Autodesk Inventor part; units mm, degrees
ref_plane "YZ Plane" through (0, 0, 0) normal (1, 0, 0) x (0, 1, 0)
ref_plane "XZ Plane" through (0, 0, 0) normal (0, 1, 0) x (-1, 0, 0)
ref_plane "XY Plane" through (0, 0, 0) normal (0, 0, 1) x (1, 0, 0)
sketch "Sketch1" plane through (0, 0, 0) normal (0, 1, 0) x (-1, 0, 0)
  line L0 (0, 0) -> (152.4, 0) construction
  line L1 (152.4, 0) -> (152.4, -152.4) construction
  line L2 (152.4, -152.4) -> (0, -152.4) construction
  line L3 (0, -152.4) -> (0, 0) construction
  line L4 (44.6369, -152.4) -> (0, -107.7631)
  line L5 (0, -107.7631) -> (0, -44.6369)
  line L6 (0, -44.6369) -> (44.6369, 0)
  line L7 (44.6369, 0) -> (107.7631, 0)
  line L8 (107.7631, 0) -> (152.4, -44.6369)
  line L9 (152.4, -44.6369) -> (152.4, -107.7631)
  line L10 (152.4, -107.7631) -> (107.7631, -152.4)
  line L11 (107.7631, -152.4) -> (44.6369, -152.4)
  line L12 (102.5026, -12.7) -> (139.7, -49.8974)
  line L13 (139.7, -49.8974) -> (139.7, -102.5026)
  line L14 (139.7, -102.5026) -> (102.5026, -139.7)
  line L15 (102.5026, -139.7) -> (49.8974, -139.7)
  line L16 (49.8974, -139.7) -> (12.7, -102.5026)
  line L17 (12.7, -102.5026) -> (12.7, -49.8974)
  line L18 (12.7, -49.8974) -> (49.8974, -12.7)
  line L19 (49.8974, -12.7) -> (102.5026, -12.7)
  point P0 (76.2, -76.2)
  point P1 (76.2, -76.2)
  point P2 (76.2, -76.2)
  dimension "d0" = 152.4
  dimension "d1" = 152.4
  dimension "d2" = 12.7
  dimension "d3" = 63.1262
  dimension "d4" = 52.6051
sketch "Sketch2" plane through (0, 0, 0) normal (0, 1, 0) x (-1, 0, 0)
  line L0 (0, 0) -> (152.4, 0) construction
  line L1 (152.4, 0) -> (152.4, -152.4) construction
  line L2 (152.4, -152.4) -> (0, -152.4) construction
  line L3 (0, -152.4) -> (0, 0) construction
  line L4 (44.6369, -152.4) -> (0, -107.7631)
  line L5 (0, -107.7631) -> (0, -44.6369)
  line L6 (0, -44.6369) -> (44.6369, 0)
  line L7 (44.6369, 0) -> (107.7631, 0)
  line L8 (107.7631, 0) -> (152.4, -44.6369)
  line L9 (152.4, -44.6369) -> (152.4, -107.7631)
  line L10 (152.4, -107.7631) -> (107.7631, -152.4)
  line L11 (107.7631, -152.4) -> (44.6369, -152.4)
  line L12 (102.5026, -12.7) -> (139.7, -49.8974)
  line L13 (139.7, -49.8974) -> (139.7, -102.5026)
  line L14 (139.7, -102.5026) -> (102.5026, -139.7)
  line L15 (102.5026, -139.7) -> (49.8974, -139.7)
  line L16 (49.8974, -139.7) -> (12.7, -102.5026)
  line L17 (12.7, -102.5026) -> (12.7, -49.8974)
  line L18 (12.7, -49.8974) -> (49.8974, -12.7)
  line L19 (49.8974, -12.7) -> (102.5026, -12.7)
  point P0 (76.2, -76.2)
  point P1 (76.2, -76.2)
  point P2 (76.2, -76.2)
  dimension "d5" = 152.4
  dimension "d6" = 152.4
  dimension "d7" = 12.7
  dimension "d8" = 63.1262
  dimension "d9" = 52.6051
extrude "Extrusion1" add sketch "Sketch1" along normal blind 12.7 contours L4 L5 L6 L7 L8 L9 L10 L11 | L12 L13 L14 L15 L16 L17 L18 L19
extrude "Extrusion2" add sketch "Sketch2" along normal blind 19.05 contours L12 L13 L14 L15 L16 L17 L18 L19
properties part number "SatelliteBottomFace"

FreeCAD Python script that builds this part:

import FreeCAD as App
import Part
import Sketcher

V = App.Vector
Q = App.Units.Quantity


def add_polygon(sketch, points):
    """Adds a closed chain of lines whose ends are joined by coincident constraints."""
    first, n = sketch.GeometryCount, len(points)
    for a, b in zip(points, points[1:] + points[:1]):
        sketch.addGeometry(Part.LineSegment(App.Vector(*a, 0), App.Vector(*b, 0)), False)
    for i in range(n):
        sketch.addConstraint(Sketcher.Constraint("Coincident", first + i, 2, first + (i + 1) % n, 1))

doc = App.newDocument("Part")
body = doc.addObject("PartDesign::Body", "Body")

sketch1 = doc.addObject("Sketcher::SketchObject", "Sketch")
body.addObject(sketch1)
sketch1.AttachmentSupport = (doc.XZ_Plane, [""])
sketch1.MapMode = "FlatFace"
add_polygon(sketch1, [(0, -107.7631), (-44.6369, -152.4), (-107.7631, -152.4), (-152.4, -107.7631), (-152.4, -44.6369), (-107.7631, 0), (-44.6369, 0), (0, -44.6369)])
sketch1.addConstraint(Sketcher.Constraint("Horizontal", 1))
sketch1.addConstraint(Sketcher.Constraint("Vertical", 3))
sketch1.addConstraint(Sketcher.Constraint("Horizontal", 5))
sketch1.addConstraint(Sketcher.Constraint("Vertical", 7))
sketch1.addConstraint(Sketcher.Constraint("PointOnObject", 4, 2, -1))
sketch1.addConstraint(Sketcher.Constraint("PointOnObject", 6, 2, -2))
sketch1.addConstraint(Sketcher.Constraint("Perpendicular", 0, 2))
sketch1.addConstraint(Sketcher.Constraint("Perpendicular", 2, 4))
sketch1.addConstraint(Sketcher.Constraint("Perpendicular", 4, 6))
sketch1.addConstraint(Sketcher.Constraint("Horizontal", 3, 2, 6, 2))
sketch1.addConstraint(Sketcher.Constraint("Horizontal", 2, 2, 7, 2))
sketch1.addConstraint(Sketcher.Constraint("Vertical", 1, 2, 4, 2))
sketch1.addConstraint(Sketcher.Constraint("Vertical", 0, 2, 5, 2))
sketch1.addConstraint(Sketcher.Constraint("Equal", 5, 3))
sketch1.addConstraint(Sketcher.Constraint("DistanceY", 0, 2, -1, 1, Q("6 in")))
sketch1.addConstraint(Sketcher.Constraint("DistanceX", 1, 2, 1, 1, 63.1262))
pad1 = doc.addObject("PartDesign::Pad", "Pad")
body.addObject(pad1)
pad1.Profile = sketch1
pad1.Length = Q("0.5 in")
pad1.Reversed = True

sketch2 = doc.addObject("Sketcher::SketchObject", "Sketch001")
body.addObject(sketch2)
sketch2.AttachmentSupport = (doc.XZ_Plane, [""])
sketch2.MapMode = "FlatFace"
add_polygon(sketch2, [(-139.7, -49.8974), (-102.5026, -12.7), (-49.8974, -12.7), (-12.7, -49.8974), (-12.7, -102.5026), (-49.8974, -139.7), (-102.5026, -139.7), (-139.7, -102.5026)])
sketch2.addConstraint(Sketcher.Constraint("Horizontal", 1))
sketch2.addConstraint(Sketcher.Constraint("Vertical", 3))
sketch2.addConstraint(Sketcher.Constraint("Horizontal", 5))
sketch2.addConstraint(Sketcher.Constraint("Vertical", 7))
sketch2.addConstraint(Sketcher.Constraint("Perpendicular", 0, 2))
sketch2.addConstraint(Sketcher.Constraint("Perpendicular", 2, 4))
sketch2.addConstraint(Sketcher.Constraint("Perpendicular", 4, 6))
sketch2.addConstraint(Sketcher.Constraint("Horizontal", 3, 2, 6, 2))
sketch2.addConstraint(Sketcher.Constraint("Horizontal", 2, 2, 7, 2))
sketch2.addConstraint(Sketcher.Constraint("Vertical", 1, 2, 4, 2))
sketch2.addConstraint(Sketcher.Constraint("Vertical", 0, 2, 5, 2))
sketch2.addConstraint(Sketcher.Constraint("Equal", 5, 3))
sketch2.addConstraint(Sketcher.Constraint("DistanceY", 0, 2, -1, 1, Q("0.5 in")))
sketch2.addConstraint(Sketcher.Constraint("DistanceX", 2, 2, -1, 1, Q("0.5 in")))
sketch2.addConstraint(Sketcher.Constraint("DistanceY", 4, 2, 1, 2, Q("5 in")))
sketch2.addConstraint(Sketcher.Constraint("DistanceX", 1, 1, 1, 2, 52.6052))
pad2 = doc.addObject("PartDesign::Pad", "Pad001")
body.addObject(pad2)
pad2.Profile = sketch2
pad2.Length = Q("0.75 in")
pad2.Reversed = True

doc.recompute()
